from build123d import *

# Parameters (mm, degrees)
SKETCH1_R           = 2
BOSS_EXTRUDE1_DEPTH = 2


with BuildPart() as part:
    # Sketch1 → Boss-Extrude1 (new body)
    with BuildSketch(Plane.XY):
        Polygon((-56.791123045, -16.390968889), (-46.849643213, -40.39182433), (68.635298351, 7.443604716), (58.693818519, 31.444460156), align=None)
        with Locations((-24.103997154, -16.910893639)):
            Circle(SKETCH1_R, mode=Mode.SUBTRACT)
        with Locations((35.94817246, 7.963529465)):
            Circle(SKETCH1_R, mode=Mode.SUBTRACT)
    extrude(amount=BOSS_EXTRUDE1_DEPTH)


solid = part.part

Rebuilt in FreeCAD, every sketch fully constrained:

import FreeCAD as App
import Part
import Sketcher

V = App.Vector
Q = App.Units.Quantity


def add_polygon(sketch, points):
    """Adds a closed chain of lines whose ends are joined by coincident constraints."""
    first, n = sketch.GeometryCount, len(points)
    for a, b in zip(points, points[1:] + points[:1]):
        sketch.addGeometry(Part.LineSegment(App.Vector(*a, 0), App.Vector(*b, 0)), False)
    for i in range(n):
        sketch.addConstraint(Sketcher.Constraint("Coincident", first + i, 2, first + (i + 1) % n, 1))

doc = App.newDocument("Part")
params = doc.addObject("Spreadsheet::Sheet", "Params")
for row, (alias, value) in enumerate([
    ("sketch1_diameter", "4 mm"),
    ("sketch1_length", "125 mm"),
    ("pad1_length", "2 mm"),
], start=1):
    params.set(f"A{row}", alias)
    params.set(f"B{row}", "=" + value)
    params.setAlias(f"B{row}", alias)

body = doc.addObject("PartDesign::Body", "Body")

# Sketch on XY plane
sketch1 = body.newObject("Sketcher::SketchObject", "Sketch")
sketch1.AttachmentSupport = (doc.getObject("XY_Plane"), [""])
sketch1.MapMode = "FlatFace"
add_polygon(sketch1, [(-56.8, -16.4), (-46.8, -40.4), (68.6, 7.4), (58.7, 31.4)])  # lines 0-3
sketch1.addGeometry(Part.Circle(V(-24.1, -16.9, 0), V(0, 0, 1), 2), False)  # 4
sketch1.addGeometry(Part.Circle(V(35.9, 8, 0), V(0, 0, 1), 2), False)  # 5
sketch1.addConstraint(Sketcher.Constraint("Equal", 4, 5))
sketch1.addConstraint(Sketcher.Constraint("Perpendicular", 0, 1))
sketch1.addConstraint(Sketcher.Constraint("Perpendicular", 1, 2))
sketch1.addConstraint(Sketcher.Constraint("Perpendicular", 2, 3))
sketch1.addConstraint(Sketcher.Constraint("Diameter", 4, Q("4 mm")))
sketch1.addConstraint(Sketcher.Constraint("Distance", 1, Q("125 mm")))
sketch1.addConstraint(Sketcher.Constraint("Angle", 0, Q("-67.5 deg")))
sketch1.addConstraint(Sketcher.Constraint("DistanceX", -1, 1, 1, 2, Q("68.635298 mm")))
sketch1.addConstraint(Sketcher.Constraint("DistanceY", 4, 3, 1, 2, Q("24.354498 mm")))
sketch1.addConstraint(Sketcher.Constraint("DistanceY", 3, 2, 5, 3, Q("24.354498 mm")))
sketch1.addConstraint(Sketcher.Constraint("Distance", 0, Q("25.978339 mm")))
sketch1.addConstraint(Sketcher.Constraint("DistanceY", -1, 1, 5, 3, Q("7.963529 mm")))
sketch1.addConstraint(Sketcher.Constraint("DistanceX", 4, 3, 5, 3, Q("60.05217 mm")))
sketch1.addConstraint(Sketcher.Constraint("DistanceX", 4, 3, -1, 1, Q("24.103997 mm")))
sketch1.setExpression("Constraints[8]", "Params.sketch1_diameter")
sketch1.setExpression("Constraints[9]", "Params.sketch1_length")
pad1 = body.newObject("PartDesign::Pad", "Pad")
pad1.Profile = sketch1
pad1.setExpression("Length", "Params.pad1_length")

doc.recompute()
